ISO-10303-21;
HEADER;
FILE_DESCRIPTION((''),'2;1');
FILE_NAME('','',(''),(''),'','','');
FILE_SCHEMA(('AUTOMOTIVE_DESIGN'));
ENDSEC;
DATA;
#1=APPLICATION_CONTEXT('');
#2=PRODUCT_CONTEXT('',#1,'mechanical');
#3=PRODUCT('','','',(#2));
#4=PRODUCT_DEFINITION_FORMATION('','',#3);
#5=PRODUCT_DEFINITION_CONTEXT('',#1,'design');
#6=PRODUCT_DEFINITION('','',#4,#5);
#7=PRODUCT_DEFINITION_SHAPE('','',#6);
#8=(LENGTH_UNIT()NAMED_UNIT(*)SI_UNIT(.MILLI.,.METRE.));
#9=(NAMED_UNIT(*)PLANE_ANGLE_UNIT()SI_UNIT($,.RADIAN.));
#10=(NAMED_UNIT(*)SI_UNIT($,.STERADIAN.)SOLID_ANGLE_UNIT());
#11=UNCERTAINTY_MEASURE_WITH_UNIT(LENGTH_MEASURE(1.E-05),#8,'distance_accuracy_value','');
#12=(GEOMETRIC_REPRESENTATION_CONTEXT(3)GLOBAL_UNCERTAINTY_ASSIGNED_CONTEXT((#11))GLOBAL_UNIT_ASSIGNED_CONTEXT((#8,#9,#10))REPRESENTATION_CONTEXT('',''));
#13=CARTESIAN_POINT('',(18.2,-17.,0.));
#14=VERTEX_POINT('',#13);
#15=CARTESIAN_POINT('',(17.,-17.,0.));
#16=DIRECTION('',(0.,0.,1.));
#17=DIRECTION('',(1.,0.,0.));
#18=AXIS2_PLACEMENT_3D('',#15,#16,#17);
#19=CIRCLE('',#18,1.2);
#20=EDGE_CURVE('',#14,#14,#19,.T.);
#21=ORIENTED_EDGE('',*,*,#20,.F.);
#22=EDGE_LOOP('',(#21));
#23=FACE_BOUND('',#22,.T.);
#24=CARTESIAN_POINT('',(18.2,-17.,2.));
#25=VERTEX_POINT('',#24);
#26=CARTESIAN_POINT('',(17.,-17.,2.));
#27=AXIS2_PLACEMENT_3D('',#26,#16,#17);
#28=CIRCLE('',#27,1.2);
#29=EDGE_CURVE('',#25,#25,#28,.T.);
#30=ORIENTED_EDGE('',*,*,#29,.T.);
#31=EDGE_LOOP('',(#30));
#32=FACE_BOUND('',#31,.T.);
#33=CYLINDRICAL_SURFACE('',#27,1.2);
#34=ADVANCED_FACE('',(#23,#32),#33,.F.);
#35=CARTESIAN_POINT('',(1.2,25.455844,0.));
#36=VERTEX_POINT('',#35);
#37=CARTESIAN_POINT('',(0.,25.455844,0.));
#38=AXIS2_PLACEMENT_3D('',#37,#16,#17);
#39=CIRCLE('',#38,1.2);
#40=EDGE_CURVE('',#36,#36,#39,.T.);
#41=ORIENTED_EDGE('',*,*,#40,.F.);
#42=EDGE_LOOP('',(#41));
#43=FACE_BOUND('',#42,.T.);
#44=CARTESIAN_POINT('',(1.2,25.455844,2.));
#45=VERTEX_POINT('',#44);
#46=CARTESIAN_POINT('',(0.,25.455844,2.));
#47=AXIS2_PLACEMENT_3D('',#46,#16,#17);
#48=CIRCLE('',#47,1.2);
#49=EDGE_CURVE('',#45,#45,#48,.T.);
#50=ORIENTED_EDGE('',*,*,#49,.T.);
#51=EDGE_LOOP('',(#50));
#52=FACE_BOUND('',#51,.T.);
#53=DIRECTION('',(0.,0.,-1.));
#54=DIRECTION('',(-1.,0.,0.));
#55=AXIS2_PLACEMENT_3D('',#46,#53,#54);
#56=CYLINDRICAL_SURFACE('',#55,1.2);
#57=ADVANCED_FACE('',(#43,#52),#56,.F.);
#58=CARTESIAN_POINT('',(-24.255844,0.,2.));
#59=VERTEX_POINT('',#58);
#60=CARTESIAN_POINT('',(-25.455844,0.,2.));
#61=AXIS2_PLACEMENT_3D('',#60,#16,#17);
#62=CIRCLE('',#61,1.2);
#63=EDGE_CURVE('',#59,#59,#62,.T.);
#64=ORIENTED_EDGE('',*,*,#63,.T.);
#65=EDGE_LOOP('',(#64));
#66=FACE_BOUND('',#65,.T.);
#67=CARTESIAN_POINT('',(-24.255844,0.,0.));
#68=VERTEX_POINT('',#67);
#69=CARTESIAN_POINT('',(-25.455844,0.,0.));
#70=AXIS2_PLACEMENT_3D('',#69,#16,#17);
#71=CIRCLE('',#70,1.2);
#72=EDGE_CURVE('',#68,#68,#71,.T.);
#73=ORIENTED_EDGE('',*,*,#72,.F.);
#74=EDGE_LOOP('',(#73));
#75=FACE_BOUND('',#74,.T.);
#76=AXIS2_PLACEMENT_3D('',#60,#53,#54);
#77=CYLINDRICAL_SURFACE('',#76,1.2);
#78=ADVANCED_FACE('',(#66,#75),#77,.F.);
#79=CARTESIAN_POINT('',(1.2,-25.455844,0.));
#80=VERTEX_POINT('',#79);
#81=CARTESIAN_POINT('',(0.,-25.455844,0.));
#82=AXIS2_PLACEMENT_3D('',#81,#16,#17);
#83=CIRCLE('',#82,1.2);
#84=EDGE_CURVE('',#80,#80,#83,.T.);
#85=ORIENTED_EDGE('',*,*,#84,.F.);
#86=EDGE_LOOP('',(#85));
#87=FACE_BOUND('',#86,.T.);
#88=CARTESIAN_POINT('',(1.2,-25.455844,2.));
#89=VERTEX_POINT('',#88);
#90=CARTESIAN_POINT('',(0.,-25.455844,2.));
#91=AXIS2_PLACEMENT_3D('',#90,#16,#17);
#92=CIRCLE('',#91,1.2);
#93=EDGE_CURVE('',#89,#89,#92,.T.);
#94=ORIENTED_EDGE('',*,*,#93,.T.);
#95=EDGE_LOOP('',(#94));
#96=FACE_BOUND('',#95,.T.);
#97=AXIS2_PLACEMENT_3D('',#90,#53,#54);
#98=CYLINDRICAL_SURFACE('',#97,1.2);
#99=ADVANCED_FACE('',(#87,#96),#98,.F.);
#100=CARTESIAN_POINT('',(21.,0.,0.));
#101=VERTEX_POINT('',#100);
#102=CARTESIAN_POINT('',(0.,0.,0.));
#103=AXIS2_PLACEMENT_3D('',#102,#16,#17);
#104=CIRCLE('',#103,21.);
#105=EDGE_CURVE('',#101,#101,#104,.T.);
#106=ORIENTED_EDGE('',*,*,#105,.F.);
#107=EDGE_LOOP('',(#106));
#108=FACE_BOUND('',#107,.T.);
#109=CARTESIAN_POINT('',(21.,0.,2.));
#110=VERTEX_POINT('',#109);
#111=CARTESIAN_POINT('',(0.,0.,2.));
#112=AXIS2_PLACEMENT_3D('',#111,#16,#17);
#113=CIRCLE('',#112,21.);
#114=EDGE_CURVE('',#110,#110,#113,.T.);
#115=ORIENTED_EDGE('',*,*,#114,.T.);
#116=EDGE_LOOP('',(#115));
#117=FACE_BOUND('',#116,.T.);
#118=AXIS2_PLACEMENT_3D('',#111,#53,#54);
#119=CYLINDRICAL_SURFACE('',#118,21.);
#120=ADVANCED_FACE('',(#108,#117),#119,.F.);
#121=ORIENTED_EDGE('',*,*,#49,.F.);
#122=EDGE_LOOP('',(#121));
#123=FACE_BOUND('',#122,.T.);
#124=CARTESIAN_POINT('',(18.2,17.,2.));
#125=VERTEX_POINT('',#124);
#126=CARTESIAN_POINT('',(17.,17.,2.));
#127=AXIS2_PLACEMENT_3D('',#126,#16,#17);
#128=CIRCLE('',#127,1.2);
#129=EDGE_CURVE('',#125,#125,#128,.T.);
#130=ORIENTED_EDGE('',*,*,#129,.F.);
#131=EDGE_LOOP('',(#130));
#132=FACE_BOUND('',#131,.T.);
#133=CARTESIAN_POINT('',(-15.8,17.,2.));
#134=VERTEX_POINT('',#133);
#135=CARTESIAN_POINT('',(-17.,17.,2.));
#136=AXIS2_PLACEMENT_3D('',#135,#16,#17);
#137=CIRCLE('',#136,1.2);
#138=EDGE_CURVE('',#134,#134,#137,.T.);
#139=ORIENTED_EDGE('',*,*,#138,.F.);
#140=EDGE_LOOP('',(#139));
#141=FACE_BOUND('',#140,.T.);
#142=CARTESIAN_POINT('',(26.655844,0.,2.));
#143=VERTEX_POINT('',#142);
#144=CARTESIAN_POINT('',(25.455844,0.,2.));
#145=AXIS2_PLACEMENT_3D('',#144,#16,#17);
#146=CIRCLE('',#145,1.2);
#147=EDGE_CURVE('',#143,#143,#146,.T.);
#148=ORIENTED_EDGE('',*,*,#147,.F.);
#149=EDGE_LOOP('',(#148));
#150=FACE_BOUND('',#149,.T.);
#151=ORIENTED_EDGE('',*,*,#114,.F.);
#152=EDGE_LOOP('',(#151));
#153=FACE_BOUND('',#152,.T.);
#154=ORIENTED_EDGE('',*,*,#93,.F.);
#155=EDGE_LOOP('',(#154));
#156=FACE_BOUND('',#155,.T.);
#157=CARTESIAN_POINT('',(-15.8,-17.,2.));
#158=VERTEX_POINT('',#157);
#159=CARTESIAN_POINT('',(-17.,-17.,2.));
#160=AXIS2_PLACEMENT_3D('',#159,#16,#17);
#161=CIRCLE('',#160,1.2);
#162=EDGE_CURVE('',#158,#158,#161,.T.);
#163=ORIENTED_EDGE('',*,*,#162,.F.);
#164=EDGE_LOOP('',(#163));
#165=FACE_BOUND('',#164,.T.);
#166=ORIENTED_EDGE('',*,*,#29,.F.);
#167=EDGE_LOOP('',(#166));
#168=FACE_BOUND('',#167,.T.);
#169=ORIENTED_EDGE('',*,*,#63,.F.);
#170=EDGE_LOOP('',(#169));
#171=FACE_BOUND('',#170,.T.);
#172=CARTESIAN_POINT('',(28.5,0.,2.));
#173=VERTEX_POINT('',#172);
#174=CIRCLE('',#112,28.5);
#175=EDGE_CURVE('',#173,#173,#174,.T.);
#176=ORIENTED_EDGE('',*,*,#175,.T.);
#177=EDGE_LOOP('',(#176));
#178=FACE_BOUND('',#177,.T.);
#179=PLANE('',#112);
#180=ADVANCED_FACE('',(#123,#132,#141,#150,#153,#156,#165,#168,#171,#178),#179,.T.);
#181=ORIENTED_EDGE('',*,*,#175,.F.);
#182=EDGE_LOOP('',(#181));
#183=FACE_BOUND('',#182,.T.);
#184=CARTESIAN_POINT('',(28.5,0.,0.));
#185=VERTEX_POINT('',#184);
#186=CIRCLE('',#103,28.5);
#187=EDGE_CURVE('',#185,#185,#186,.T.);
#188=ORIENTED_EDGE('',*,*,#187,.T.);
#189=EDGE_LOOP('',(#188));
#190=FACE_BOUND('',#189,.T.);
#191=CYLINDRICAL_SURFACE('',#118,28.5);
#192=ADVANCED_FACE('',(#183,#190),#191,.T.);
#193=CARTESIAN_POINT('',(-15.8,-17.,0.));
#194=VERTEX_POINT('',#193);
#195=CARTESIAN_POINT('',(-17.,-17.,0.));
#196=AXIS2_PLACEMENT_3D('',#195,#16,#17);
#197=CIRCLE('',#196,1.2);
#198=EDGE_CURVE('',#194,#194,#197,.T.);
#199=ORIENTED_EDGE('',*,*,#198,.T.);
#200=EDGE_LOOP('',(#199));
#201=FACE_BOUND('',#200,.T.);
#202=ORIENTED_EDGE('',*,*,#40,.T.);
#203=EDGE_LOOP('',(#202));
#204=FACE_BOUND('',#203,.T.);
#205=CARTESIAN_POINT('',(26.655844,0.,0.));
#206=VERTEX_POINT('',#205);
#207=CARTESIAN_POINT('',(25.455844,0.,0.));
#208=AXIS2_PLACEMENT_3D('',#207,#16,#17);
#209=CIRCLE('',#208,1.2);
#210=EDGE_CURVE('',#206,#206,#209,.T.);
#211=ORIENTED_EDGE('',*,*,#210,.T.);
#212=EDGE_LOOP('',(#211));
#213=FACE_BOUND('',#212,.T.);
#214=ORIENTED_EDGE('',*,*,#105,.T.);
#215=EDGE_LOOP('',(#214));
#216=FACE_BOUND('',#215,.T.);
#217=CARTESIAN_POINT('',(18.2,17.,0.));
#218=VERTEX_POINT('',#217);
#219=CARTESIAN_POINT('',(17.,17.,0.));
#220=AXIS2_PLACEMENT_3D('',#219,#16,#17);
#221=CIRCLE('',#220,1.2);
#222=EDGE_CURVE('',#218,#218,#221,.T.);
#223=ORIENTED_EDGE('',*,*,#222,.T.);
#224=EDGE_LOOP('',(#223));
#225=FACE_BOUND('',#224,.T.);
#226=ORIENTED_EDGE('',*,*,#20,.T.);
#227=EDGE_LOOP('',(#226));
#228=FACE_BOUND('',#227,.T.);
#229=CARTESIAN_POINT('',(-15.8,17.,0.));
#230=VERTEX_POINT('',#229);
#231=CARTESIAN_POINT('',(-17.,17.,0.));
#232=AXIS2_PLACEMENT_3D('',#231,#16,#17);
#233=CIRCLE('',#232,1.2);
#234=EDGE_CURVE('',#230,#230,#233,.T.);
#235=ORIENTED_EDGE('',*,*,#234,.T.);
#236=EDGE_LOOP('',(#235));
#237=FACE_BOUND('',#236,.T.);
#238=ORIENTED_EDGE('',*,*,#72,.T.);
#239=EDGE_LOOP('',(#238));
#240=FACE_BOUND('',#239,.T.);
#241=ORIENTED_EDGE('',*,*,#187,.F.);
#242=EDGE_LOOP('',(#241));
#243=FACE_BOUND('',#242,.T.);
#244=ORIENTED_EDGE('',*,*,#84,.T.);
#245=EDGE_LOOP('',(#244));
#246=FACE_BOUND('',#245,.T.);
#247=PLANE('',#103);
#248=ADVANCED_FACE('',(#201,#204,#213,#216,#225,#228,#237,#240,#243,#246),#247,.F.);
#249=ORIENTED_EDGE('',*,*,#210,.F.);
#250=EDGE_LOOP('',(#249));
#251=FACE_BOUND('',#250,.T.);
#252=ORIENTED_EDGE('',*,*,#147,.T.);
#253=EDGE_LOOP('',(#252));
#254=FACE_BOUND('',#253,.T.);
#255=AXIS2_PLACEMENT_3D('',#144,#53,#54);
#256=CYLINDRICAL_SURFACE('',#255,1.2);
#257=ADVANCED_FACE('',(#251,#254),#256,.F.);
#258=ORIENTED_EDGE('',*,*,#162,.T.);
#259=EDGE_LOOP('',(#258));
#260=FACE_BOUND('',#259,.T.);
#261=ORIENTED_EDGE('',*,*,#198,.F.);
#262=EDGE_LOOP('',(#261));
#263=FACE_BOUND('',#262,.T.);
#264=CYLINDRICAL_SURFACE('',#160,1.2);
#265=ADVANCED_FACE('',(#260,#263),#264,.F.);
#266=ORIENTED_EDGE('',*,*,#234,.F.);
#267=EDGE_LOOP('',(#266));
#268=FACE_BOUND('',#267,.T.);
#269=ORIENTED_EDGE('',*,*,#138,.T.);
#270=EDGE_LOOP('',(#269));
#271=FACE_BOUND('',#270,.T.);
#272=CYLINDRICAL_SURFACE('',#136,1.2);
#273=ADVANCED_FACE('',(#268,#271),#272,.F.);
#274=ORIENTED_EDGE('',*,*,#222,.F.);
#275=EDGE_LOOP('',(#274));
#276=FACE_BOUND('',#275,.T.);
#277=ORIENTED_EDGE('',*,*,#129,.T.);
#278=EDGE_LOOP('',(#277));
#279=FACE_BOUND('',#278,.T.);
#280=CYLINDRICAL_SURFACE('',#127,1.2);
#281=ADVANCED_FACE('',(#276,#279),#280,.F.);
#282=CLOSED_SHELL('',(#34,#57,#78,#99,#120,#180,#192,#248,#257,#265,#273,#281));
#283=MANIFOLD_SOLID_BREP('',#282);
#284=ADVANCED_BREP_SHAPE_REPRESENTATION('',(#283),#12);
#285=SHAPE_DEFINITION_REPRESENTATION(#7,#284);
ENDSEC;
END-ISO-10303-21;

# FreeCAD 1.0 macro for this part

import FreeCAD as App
import Part
import Sketcher
from FreeCAD import Vector

doc = App.newDocument("Part")
body = doc.addObject("PartDesign::Body", "Body")

sketch1 = body.newObject("Sketcher::SketchObject", "Sketch")
sketch1.AttachmentSupport = (doc.getObject("XY_Plane"), [""])
sketch1.MapMode = "FlatFace"
sketch1.addGeometry([
    Part.Circle(Vector(0, 0, 0), Vector(0, 0, 1), 28),
    Part.Circle(Vector(0, 0, 0), Vector(0, 0, 1), 21),
], False)
sketch1.addConstraint([
    Sketcher.Constraint("Coincident", 0, 3, -1, 1),
    Sketcher.Constraint("Coincident", 1, 3, -1, 1),
    Sketcher.Constraint("Diameter", 0, 57.0),
    Sketcher.Constraint("Diameter", 1, 42.0),
])
pad1 = body.newObject("PartDesign::Pad", "Pad")
pad1.Profile = sketch1
pad1.Length = 2

sketch2 = body.newObject("Sketcher::SketchObject", "Sketch001")
sketch2.AttachmentSupport = (doc.getObject("XY_Plane"), [""])
sketch2.MapMode = "FlatFace"
sketch2.addGeometry([
    Part.Circle(Vector(0, 25.5, 0), Vector(0, 0, 1), 1.2),
    Part.Circle(Vector(25.5, 0, 0), Vector(0, 0, 1), 1.2),
    Part.Circle(Vector(-25.5, 0, 0), Vector(0, 0, 1), 1.2),
    Part.Circle(Vector(0, -25.5, 0), Vector(0, 0, 1), 1.2),
], False)
sketch2.addConstraint([
    Sketcher.Constraint("Equal", 0, 1),
    Sketcher.Constraint("Equal", 1, 2),
    Sketcher.Constraint("Equal", 2, 3),
    Sketcher.Constraint("Symmetric", 1, 3, 2, 3, -1, 1),
    Sketcher.Constraint("Symmetric", 0, 3, 3, 3, -1, 1),
    Sketcher.Constraint("PointOnObject", 0, 3, -2),
    Sketcher.Constraint("PointOnObject", 1, 3, -1),
    Sketcher.Constraint("Diameter", 0, 2.4),
    Sketcher.Constraint("DistanceX", 2, 3, 1, 3, 50.911688),
    Sketcher.Constraint("DistanceY", 3, 3, 0, 3, 50.911688),
])
pocket1 = body.newObject("PartDesign::Pocket", "Pocket")
pocket1.Profile = sketch2
pocket1.Type = "ThroughAll"
pocket1.Reversed = True

sketch3 = body.newObject("Sketcher::SketchObject", "Sketch002")
sketch3.AttachmentSupport = (doc.getObject("XY_Plane"), [""])
sketch3.MapMode = "FlatFace"
sketch3.AttachmentOffset = App.Placement(Vector(0, 0, 2), App.Rotation())
sketch3.addGeometry([
    Part.Circle(Vector(-17, 17, 0), Vector(0, 0, 1), 1.2),
    Part.Circle(Vector(17, 17, 0), Vector(0, 0, 1), 1.2),
    Part.Circle(Vector(17, -17, 0), Vector(0, 0, 1), 1.2),
    Part.Circle(Vector(-17, -17, 0), Vector(0, 0, 1), 1.2),
], False)
sketch3.addConstraint([
    Sketcher.Constraint("Equal", 0, 1),
    Sketcher.Constraint("Equal", 1, 2),
    Sketcher.Constraint("Equal", 2, 3),
    Sketcher.Constraint("Symmetric", 0, 3, 2, 3, -1, 1),
    Sketcher.Constraint("Symmetric", 1, 3, 3, 3, -1, 1),
    Sketcher.Constraint("Symmetric", 0, 3, 1, 3, -2),
    Sketcher.Constraint("Diameter", 0, 2.4),
    Sketcher.Constraint("DistanceX", 0, 3, -1, 1, 17.0),
    Sketcher.Constraint("DistanceY", -1, 1, 0, 3, 17.0),
])
doc.recompute()
hole = body.newObject("PartDesign::Hole", "Hole")
hole.Profile = sketch3
hole.ThreadType = "None"
hole.Diameter = 2.4
hole.DepthType = "ThroughAll"

doc.recompute()
